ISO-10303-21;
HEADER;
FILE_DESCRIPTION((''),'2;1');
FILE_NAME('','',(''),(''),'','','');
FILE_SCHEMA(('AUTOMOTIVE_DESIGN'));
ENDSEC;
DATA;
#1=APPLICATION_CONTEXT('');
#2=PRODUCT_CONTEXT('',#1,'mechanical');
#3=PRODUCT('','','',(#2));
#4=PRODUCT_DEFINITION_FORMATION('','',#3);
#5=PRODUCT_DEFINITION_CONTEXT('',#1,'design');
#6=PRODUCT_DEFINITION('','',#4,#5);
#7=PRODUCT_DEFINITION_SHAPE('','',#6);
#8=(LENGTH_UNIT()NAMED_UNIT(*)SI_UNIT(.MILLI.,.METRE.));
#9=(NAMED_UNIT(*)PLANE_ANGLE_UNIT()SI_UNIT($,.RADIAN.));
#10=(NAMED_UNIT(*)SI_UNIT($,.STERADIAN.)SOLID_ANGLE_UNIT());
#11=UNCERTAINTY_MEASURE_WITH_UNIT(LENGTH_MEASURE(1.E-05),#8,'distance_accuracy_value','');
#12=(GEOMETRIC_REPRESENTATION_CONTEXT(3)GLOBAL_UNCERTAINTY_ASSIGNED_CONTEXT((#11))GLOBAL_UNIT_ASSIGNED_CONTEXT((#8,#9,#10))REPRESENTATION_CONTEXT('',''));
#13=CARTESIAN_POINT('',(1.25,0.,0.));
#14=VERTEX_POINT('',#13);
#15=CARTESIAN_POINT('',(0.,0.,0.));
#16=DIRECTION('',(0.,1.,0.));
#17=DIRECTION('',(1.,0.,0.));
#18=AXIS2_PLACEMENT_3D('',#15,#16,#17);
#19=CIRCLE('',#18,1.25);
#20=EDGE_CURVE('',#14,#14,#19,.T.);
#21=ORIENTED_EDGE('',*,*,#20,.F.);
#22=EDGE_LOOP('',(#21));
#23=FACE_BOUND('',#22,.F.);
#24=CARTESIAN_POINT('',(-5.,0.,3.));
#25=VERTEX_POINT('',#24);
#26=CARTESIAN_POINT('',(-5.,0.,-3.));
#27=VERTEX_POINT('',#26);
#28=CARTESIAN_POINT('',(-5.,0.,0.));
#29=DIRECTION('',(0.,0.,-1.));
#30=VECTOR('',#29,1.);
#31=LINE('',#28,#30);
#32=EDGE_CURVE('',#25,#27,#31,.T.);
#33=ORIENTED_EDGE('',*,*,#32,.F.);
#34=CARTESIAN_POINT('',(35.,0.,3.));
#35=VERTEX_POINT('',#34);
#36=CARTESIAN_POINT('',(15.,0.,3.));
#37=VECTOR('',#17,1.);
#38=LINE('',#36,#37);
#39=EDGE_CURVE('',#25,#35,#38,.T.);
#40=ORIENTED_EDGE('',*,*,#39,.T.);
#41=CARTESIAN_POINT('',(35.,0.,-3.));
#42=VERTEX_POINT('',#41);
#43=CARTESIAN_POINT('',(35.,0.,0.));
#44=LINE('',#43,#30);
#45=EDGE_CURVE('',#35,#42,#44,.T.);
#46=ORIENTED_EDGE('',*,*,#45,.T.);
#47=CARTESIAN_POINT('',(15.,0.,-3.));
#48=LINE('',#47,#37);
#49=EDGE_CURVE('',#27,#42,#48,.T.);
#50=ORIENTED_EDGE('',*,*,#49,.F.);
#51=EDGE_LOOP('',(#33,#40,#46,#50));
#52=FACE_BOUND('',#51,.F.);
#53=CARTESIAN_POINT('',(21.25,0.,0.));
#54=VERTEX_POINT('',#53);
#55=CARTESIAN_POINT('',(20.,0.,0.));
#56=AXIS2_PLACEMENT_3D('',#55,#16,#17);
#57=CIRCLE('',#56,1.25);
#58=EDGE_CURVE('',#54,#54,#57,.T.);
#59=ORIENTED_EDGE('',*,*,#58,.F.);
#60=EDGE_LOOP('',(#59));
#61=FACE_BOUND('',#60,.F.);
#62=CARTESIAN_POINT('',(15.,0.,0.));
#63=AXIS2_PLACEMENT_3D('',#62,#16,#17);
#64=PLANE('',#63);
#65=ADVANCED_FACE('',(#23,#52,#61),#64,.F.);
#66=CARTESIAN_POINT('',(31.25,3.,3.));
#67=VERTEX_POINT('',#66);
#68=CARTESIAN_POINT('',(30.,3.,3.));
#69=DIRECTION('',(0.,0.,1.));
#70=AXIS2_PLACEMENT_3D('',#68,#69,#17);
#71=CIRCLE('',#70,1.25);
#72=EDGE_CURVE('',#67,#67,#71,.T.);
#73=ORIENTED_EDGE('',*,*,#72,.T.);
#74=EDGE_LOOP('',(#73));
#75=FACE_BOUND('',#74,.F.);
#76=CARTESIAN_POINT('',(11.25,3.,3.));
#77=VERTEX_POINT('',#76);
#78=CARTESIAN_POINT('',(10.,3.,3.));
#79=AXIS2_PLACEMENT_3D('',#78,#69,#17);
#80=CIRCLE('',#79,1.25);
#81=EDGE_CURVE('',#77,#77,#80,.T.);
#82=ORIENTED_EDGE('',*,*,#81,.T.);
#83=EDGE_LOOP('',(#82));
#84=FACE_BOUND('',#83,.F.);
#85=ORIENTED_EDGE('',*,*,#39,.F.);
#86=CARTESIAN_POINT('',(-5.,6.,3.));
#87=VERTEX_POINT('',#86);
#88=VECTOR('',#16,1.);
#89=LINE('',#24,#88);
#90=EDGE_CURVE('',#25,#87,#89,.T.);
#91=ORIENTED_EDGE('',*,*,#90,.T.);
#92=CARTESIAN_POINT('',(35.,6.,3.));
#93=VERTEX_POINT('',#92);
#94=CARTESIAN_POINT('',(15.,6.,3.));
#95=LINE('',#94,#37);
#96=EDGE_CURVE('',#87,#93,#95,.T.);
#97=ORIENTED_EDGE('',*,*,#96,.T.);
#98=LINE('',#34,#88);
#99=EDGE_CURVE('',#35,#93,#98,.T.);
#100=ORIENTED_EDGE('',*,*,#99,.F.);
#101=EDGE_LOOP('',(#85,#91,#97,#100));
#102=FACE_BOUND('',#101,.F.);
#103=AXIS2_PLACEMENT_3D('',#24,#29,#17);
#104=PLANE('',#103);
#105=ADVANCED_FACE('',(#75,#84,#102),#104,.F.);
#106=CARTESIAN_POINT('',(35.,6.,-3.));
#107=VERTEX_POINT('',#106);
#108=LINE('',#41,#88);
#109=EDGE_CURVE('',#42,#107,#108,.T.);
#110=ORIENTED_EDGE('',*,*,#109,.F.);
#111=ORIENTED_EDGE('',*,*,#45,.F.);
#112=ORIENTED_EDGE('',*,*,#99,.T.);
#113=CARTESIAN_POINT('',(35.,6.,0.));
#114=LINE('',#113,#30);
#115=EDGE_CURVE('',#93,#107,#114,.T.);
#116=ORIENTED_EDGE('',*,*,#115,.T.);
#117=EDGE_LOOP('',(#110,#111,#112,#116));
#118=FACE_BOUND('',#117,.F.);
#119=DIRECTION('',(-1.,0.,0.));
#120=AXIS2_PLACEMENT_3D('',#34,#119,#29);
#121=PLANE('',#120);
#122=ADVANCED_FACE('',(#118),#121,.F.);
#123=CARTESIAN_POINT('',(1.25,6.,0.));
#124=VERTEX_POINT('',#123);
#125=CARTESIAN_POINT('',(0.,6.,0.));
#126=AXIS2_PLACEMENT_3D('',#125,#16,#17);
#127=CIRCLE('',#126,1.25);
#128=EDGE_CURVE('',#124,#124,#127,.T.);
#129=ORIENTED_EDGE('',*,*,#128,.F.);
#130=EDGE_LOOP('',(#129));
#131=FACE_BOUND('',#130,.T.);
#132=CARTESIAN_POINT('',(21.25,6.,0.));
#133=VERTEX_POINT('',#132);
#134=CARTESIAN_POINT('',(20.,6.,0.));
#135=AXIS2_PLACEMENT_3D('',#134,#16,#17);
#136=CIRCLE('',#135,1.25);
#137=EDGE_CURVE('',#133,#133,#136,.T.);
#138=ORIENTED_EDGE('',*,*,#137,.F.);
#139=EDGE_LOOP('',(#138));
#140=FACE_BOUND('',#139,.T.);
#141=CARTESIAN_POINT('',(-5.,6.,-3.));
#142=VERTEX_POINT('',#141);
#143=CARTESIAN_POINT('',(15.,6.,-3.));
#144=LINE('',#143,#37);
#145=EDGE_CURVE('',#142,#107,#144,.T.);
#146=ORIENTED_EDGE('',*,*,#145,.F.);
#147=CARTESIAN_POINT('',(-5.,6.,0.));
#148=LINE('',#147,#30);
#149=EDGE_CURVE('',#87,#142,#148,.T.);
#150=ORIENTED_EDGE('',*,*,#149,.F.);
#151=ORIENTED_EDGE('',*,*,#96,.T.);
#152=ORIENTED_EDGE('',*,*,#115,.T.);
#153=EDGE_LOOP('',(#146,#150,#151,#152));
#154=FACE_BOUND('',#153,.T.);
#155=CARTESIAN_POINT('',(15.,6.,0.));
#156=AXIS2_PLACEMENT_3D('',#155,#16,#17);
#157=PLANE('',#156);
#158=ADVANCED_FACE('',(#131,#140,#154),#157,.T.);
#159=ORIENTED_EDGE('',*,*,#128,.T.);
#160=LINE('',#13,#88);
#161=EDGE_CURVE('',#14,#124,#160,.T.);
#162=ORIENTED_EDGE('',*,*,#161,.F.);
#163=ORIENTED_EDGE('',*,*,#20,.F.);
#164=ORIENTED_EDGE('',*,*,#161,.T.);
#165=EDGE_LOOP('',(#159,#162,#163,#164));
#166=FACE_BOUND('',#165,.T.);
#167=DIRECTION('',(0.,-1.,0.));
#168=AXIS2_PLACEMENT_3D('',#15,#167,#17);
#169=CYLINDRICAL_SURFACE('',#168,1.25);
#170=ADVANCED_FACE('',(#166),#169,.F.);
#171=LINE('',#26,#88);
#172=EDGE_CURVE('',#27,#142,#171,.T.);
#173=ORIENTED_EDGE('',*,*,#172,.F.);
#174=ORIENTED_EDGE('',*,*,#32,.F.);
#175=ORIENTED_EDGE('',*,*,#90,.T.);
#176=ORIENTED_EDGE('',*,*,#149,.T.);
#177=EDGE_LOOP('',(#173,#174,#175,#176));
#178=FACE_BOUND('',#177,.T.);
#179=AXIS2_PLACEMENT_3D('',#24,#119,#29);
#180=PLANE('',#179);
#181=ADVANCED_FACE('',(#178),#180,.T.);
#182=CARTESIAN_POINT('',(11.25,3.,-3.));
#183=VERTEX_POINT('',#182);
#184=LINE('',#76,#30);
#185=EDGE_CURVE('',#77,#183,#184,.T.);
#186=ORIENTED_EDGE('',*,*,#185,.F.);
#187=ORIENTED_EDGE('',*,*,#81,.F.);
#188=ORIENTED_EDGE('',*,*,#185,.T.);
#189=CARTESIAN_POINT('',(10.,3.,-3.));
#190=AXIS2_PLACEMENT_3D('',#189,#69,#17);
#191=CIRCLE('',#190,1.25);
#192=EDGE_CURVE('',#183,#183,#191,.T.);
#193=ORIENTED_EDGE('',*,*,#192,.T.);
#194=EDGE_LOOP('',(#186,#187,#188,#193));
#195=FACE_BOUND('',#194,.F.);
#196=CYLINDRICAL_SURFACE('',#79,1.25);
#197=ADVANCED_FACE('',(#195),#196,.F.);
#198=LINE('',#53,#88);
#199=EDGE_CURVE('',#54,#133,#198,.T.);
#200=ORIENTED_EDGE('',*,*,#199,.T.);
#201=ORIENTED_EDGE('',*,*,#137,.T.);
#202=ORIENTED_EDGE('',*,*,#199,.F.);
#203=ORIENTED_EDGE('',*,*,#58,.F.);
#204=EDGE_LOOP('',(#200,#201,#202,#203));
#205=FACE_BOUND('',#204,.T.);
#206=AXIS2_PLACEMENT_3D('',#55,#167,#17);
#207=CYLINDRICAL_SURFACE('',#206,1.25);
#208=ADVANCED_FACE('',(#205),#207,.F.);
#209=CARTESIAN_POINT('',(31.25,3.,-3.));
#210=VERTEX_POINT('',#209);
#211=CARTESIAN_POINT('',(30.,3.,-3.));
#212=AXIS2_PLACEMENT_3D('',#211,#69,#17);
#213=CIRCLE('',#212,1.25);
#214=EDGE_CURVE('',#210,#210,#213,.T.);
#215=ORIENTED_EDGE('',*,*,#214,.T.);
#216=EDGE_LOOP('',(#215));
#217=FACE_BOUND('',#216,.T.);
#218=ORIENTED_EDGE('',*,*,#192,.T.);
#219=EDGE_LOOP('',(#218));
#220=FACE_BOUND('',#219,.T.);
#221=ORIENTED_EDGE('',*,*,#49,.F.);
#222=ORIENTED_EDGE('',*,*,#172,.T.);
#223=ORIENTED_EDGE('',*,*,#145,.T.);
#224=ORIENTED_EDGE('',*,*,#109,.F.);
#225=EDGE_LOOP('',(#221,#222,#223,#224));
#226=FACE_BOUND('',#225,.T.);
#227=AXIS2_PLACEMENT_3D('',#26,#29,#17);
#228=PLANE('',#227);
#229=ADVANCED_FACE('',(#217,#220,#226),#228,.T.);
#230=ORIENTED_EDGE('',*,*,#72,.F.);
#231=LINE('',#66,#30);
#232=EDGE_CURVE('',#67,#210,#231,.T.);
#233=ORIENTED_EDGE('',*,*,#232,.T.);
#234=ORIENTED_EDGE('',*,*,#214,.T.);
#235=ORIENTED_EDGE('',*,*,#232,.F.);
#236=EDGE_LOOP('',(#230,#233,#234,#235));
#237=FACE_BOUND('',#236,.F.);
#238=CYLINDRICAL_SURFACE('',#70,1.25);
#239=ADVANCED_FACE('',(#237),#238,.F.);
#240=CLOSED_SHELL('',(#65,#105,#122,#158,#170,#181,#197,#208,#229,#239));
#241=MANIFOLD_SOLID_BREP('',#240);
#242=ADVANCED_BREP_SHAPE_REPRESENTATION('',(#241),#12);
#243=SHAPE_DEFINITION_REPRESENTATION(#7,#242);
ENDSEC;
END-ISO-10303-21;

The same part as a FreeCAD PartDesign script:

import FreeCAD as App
import Part
import Sketcher

V = App.Vector
Q = App.Units.Quantity

doc = App.newDocument("Part")
body = doc.addObject("PartDesign::Body", "Body")

sketch1 = doc.addObject("Sketcher::SketchObject", "Sketch")
body.addObject(sketch1)
sketch1.AttachmentSupport = (doc.XZ_Plane, [""])
sketch1.MapMode = "FlatFace"
sketch1.addGeometry([
    Part.LineSegment(V(-5, -3, 0), V(-5, 3, 0)),
    Part.LineSegment(V(-5, 3, 0), V(35, 3, 0)),
    Part.LineSegment(V(35, 3, 0), V(35, -3, 0)),
    Part.LineSegment(V(35, -3, 0), V(-5, -3, 0)),
    Part.Circle(V(0, 0, 0), V(0, 0, 1), 1.2),
    Part.Circle(V(20, 0, 0), V(0, 0, 1), 1.2),
], False)
sketch1.addConstraint([
    Sketcher.Constraint("Coincident", 0, 2, 1, 1),
    Sketcher.Constraint("Coincident", 1, 2, 2, 1),
    Sketcher.Constraint("Coincident", 2, 2, 3, 1),
    Sketcher.Constraint("Coincident", 3, 2, 0, 1),
    Sketcher.Constraint("Vertical", 0),
    Sketcher.Constraint("Horizontal", 1),
    Sketcher.Constraint("Vertical", 2),
    Sketcher.Constraint("Horizontal", 3),
    Sketcher.Constraint("Coincident", 4, 3, -1, 1),
    Sketcher.Constraint("Equal", 4, 5),
    Sketcher.Constraint("PointOnObject", 5, 3, -1),
    Sketcher.Constraint("Diameter", 4, Q("2.5 mm")),
    Sketcher.Constraint("DistanceX", 1, 1, 1, 2, Q("40 mm")),
    Sketcher.Constraint("DistanceY", 0, 1, 0, 2, Q("6 mm")),
    Sketcher.Constraint("DistanceX", -1, 1, 5, 3, Q("20 mm")),
    Sketcher.Constraint("DistanceX", 0, 2, -1, 1, Q("5 mm")),
    Sketcher.Constraint("DistanceY", -1, 1, 0, 2, Q("3 mm")),
])
pad1 = doc.addObject("PartDesign::Pad", "Pad")
body.addObject(pad1)
pad1.Profile = sketch1
pad1.Length = 6
pad1.Reversed = True

sketch2 = doc.addObject("Sketcher::SketchObject", "Sketch001")
body.addObject(sketch2)
sketch2.AttachmentSupport = (doc.XY_Plane, [""])
sketch2.MapMode = "FlatFace"
sketch2.AttachmentOffset = App.Placement(V(0, 0, 3), App.Rotation())
sketch2.addGeometry([
    Part.Circle(V(10, 3, 0), V(0, 0, 1), 1.2),
    Part.Circle(V(30, 3, 0), V(0, 0, 1), 1.2),
], False)
sketch2.addConstraint([
    Sketcher.Constraint("Equal", 0, 1),
    Sketcher.Constraint("Horizontal", 0, 3, 1, 3),
    Sketcher.Constraint("Diameter", 0, Q("2.5 mm")),
    Sketcher.Constraint("DistanceX", -1, 1, 0, 3, Q("10 mm")),
    Sketcher.Constraint("DistanceY", -1, 1, 0, 3, Q("3 mm")),
    Sketcher.Constraint("DistanceX", -1, 1, 1, 3, Q("30 mm")),
])
pocket1 = doc.addObject("PartDesign::Pocket", "Pocket")
body.addObject(pocket1)
pocket1.Profile = sketch2
pocket1.Length = 6

doc.recompute()
